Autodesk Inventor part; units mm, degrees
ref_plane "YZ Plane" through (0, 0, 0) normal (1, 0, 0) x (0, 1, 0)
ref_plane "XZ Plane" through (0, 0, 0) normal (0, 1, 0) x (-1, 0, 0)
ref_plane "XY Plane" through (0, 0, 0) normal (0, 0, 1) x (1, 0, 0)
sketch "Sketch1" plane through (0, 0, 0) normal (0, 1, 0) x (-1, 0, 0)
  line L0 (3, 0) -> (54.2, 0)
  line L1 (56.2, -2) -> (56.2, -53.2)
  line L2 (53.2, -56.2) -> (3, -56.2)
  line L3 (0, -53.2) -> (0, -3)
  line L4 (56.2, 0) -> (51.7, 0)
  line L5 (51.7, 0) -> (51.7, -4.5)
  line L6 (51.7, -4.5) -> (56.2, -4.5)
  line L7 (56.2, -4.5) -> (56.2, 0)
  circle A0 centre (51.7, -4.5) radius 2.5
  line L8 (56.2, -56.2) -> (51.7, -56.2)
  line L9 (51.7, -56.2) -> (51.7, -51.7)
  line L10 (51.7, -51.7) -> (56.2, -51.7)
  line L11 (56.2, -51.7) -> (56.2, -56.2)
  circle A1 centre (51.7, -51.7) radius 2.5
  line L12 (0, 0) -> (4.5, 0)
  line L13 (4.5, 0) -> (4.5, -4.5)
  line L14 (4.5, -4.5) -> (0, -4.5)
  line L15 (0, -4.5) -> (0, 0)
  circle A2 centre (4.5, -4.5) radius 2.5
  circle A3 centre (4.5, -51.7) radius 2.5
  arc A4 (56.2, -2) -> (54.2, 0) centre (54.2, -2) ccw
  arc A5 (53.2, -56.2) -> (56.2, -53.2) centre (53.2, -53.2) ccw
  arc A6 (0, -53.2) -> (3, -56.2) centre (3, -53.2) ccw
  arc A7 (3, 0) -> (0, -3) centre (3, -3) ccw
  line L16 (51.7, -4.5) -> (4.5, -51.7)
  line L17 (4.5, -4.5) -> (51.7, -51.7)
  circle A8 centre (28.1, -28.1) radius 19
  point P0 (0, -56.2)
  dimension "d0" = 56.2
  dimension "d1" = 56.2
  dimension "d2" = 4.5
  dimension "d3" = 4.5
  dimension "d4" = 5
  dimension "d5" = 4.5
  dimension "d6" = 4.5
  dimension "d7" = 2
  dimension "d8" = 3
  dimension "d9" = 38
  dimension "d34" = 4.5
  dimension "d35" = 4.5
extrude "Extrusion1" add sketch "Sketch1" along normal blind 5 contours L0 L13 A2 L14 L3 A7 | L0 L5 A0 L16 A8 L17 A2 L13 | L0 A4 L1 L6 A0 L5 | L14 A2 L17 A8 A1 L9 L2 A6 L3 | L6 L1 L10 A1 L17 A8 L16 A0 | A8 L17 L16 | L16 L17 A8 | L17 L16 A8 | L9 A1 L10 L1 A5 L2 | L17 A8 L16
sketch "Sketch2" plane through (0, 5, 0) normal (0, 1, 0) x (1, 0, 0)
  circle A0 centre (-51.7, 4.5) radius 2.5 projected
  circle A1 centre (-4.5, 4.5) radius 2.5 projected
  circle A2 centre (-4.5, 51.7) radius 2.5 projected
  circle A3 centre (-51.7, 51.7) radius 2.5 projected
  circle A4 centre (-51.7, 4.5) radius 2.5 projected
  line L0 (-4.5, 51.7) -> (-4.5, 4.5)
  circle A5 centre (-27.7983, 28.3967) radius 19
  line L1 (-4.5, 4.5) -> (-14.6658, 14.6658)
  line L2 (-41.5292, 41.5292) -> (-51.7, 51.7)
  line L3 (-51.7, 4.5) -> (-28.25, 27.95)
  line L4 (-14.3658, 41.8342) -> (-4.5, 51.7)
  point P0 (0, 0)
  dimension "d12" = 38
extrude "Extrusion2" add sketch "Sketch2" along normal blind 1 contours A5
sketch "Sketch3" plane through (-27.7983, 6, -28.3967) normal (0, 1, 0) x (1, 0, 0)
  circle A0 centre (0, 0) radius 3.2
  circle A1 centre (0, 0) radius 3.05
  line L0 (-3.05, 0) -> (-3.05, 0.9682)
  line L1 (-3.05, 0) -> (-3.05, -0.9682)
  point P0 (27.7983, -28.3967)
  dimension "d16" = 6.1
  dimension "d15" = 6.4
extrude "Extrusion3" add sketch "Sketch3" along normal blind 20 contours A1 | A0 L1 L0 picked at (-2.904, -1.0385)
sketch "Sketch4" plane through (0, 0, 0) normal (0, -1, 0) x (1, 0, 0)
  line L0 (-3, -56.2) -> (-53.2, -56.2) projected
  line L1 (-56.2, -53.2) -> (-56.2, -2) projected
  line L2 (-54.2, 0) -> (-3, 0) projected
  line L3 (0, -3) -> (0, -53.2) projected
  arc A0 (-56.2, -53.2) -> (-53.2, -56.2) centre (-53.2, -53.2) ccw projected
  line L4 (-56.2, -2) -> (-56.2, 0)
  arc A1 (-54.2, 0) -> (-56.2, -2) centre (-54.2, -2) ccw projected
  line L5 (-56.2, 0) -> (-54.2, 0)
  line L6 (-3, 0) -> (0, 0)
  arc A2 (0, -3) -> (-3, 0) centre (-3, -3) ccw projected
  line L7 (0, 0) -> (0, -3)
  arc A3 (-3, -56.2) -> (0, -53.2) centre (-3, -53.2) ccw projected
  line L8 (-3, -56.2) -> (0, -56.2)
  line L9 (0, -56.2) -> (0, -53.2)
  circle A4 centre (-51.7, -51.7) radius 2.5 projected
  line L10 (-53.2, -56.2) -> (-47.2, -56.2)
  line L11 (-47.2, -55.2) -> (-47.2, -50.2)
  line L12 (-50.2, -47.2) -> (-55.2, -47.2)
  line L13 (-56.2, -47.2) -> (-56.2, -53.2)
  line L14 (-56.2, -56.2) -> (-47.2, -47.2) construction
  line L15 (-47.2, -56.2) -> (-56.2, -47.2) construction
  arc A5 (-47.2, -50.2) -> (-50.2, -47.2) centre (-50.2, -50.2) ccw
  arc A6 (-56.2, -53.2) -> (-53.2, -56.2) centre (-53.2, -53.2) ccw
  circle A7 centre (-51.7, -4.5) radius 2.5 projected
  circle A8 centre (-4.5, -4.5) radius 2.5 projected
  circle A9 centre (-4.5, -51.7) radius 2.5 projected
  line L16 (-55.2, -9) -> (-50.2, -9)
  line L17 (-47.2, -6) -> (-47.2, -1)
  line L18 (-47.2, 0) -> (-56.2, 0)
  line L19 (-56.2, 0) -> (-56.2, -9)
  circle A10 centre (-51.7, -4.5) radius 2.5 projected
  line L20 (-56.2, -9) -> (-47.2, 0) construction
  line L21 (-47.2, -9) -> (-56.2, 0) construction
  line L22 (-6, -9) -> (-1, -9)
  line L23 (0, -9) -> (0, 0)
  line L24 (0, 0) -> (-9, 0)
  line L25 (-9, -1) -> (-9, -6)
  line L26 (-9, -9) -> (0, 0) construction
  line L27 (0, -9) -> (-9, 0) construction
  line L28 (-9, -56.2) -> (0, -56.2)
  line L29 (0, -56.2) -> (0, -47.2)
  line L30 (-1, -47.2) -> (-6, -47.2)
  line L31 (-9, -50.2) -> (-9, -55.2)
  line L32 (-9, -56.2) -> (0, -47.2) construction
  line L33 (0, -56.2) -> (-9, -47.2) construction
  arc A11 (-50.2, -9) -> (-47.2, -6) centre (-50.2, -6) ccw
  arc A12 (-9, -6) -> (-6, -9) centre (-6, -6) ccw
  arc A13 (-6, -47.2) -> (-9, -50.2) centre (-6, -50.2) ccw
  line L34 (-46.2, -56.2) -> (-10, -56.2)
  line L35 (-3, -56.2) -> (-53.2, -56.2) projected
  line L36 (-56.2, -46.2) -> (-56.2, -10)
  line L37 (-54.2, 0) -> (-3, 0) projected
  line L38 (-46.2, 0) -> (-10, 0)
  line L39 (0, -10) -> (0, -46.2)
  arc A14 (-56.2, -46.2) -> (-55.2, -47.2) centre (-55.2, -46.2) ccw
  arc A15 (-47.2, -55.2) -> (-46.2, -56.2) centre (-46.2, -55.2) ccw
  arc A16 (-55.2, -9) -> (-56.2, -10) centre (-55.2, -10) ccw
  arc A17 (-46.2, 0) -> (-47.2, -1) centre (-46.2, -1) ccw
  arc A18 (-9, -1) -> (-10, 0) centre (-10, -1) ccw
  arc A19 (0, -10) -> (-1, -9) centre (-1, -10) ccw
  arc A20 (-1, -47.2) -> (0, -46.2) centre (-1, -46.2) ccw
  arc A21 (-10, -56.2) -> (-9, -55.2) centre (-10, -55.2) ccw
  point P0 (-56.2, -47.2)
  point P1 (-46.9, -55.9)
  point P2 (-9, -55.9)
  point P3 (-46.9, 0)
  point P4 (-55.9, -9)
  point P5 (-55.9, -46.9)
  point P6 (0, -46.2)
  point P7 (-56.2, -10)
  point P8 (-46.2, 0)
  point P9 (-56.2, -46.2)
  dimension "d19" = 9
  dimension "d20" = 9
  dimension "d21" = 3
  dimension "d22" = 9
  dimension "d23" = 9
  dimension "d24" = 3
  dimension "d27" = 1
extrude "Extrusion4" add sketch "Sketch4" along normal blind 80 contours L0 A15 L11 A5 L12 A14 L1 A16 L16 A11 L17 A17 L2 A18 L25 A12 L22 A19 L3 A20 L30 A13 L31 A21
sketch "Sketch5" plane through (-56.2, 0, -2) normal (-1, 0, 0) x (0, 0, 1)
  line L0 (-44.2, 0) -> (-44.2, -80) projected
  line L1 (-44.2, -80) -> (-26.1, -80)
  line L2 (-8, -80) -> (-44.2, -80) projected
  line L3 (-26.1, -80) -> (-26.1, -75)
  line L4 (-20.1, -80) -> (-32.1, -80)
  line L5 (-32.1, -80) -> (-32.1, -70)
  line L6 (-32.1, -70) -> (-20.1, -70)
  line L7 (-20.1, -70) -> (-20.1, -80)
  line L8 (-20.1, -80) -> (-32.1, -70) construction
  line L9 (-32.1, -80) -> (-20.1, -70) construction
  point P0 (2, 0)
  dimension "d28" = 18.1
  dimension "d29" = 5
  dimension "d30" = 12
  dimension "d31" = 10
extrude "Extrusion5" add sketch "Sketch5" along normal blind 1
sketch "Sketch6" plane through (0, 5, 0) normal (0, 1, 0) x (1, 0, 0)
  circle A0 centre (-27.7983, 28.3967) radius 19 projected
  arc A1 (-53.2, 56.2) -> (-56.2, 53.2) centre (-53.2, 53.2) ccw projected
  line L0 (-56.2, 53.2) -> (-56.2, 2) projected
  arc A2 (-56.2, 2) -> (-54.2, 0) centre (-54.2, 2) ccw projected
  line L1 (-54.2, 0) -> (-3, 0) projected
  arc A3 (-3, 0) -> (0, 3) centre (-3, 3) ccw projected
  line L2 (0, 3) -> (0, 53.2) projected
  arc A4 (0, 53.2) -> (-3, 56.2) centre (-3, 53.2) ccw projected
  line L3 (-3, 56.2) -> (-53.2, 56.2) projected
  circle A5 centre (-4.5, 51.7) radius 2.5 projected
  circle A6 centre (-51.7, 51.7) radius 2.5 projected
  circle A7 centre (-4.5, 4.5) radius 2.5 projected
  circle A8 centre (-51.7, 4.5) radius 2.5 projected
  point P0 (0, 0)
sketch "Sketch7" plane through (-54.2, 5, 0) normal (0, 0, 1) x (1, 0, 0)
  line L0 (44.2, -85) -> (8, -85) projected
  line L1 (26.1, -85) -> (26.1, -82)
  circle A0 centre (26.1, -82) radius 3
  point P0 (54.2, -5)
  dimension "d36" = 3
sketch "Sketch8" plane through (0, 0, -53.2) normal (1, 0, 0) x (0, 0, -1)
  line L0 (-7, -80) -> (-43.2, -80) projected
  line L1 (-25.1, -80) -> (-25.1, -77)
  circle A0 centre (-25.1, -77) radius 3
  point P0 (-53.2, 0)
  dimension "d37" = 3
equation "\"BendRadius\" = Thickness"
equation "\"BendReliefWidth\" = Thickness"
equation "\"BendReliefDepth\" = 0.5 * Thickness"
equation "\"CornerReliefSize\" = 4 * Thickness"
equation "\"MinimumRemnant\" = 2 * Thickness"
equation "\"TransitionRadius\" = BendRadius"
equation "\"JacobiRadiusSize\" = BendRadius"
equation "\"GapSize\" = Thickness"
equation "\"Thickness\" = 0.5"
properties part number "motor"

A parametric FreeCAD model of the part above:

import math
import FreeCAD as App
import Part
import Sketcher
from FreeCAD import Vector
Q = App.Units.Quantity

doc = App.newDocument("Part")
params = doc.addObject("Spreadsheet::Sheet", "Params")
for row, (alias, value) in enumerate([
    ("sketch1_diameter", "5 mm"),
    ("sketch1_radius", "3 mm"),
    ("sketch1_radius2", "2 mm"),
    ("pad1_length", "5 mm"),
    ("sketch2_diameter", "38 mm"),
    ("pad2_length", "1 mm"),
    ("sketch3_radius", "3.2 mm"),
    ("sketch3_width", "3.05 mm"),
    ("pad3_length", "20 mm"),
    ("sketch4_radius", "1 mm"),
    ("sketch4_radius2", "3 mm"),
    ("sketch4_width", "36.2 mm"),
    ("pad4_length", "80 mm"),
    ("sketch5_width", "10 mm"),
    ("sketch5_height", "12 mm"),
    ("pad5_length", "1 mm"),
], start=1):
    params.set(f"A{row}", alias)
    params.set(f"B{row}", "=" + value)
    params.setAlias(f"B{row}", alias)

body = doc.addObject("PartDesign::Body", "Body")

# Sketch on XZ plane
sketch1 = doc.addObject("Sketcher::SketchObject", "Sketch")
body.addObject(sketch1)
sketch1.AttachmentSupport = (doc.XZ_Plane, [""])
sketch1.MapMode = "FlatFace"
sketch1.addGeometry([
    Part.ArcOfCircle(Part.Circle(Vector(-3, -3, 0), Vector(0, 0, 1), 3), math.radians(0), math.radians(90)),  # 0
    Part.LineSegment(Vector(0, -3, 0), Vector(0, -53.2, 0)),  # 1
    Part.ArcOfCircle(Part.Circle(Vector(-3, -53.2, 0), Vector(0, 0, 1), 3), math.radians(-90), math.radians(0)),  # 2
    Part.LineSegment(Vector(-3, -56.2, 0), Vector(-53.2, -56.2, 0)),  # 3
    Part.ArcOfCircle(Part.Circle(Vector(-53.2, -53.2, 0), Vector(0, 0, 1), 3), math.radians(180), math.radians(270)),  # 4
    Part.LineSegment(Vector(-56.2, -53.2, 0), Vector(-56.2, -2, 0)),  # 5
    Part.ArcOfCircle(Part.Circle(Vector(-54.2, -2, 0), Vector(0, 0, 1), 2), math.radians(90), math.radians(180)),  # 6
    Part.LineSegment(Vector(-54.2, 0, 0), Vector(-3, 0, 0)),  # 7
    Part.Circle(Vector(-4.5, -4.5, 0), Vector(0, 0, 1), 2.5),  # 8
    Part.Circle(Vector(-51.7, -4.5, 0), Vector(0, 0, 1), 2.5),  # 9
    Part.Circle(Vector(-4.5, -51.7, 0), Vector(0, 0, 1), 2.5),  # 10
    Part.Circle(Vector(-51.7, -51.7, 0), Vector(0, 0, 1), 2.5),  # 11
], False)
sketch1.addConstraint([
    Sketcher.Constraint("Tangent", 0, 1, 1, 1),
    Sketcher.Constraint("Tangent", 1, 2, 2, 2),
    Sketcher.Constraint("Tangent", 2, 1, 3, 1),
    Sketcher.Constraint("Tangent", 3, 2, 4, 2),
    Sketcher.Constraint("Tangent", 4, 1, 5, 1),
    Sketcher.Constraint("Tangent", 5, 2, 6, 2),
    Sketcher.Constraint("Tangent", 6, 1, 7, 1),
    Sketcher.Constraint("Tangent", 7, 2, 0, 2),
    Sketcher.Constraint("Vertical", 1),
    Sketcher.Constraint("Horizontal", 3),
    Sketcher.Constraint("Vertical", 5),
    Sketcher.Constraint("Horizontal", 7),
    Sketcher.Constraint("Equal", 0, 2),
    Sketcher.Constraint("Equal", 2, 4),
    Sketcher.Constraint("Equal", 8, 9),
    Sketcher.Constraint("Equal", 9, 10),
    Sketcher.Constraint("Equal", 10, 11),
    Sketcher.Constraint("PointOnObject", 0, 1, -2),
    Sketcher.Constraint("PointOnObject", 6, 1, -1),
    Sketcher.Constraint("Horizontal", 8, 3, 9, 3),
    Sketcher.Constraint("Horizontal", 10, 3, 11, 3),
    Sketcher.Constraint("Vertical", 8, 3, 10, 3),
    Sketcher.Constraint("Vertical", 9, 3, 11, 3),
    Sketcher.Constraint("Equal", 3, 1),
    Sketcher.Constraint("Diameter", 8, Q("5 mm")),
    Sketcher.Constraint("Radius", 0, Q("3 mm")),
    Sketcher.Constraint("Radius", 6, Q("2 mm")),
    Sketcher.Constraint("DistanceX", 8, 3, -1, 1, Q("4.5 mm")),
    Sketcher.Constraint("DistanceY", 8, 3, -1, 1, Q("4.5 mm")),
    Sketcher.Constraint("DistanceY", 2, 1, -1, 1, Q("56.2 mm")),
    Sketcher.Constraint("DistanceY", 2, 1, 10, 3, Q("4.5 mm")),
    Sketcher.Constraint("DistanceX", 4, 1, 11, 3, Q("4.5 mm")),
])
sketch1.setExpression("Constraints[24]", "Params.sketch1_diameter")
sketch1.setExpression("Constraints[25]", "Params.sketch1_radius")
sketch1.setExpression("Constraints[26]", "Params.sketch1_radius2")
pad1 = doc.addObject("PartDesign::Pad", "Pad")
body.addObject(pad1)
pad1.Profile = sketch1
pad1.setExpression("Length", "Params.pad1_length")
pad1.Reversed = True

# Sketch on XZ plane
sketch2 = doc.addObject("Sketcher::SketchObject", "Sketch001")
body.addObject(sketch2)
sketch2.AttachmentSupport = (doc.XZ_Plane, [""])
sketch2.MapMode = "FlatFace"
sketch2.AttachmentOffset = App.Placement(Vector(0, 0, -5), App.Rotation())
sketch2.addGeometry(Part.Circle(Vector(-28, -28, 0), Vector(0, 0, 1), 19), False)
sketch2.addConstraint([
    Sketcher.Constraint("Diameter", 0, Q("38 mm")),
    Sketcher.Constraint("DistanceX", 0, 3, -1, 1, Q("27.7983 mm")),
    Sketcher.Constraint("DistanceY", 0, 3, -1, 1, Q("28.3967 mm")),
])
sketch2.setExpression("Constraints[0]", "Params.sketch2_diameter")
pad2 = doc.addObject("PartDesign::Pad", "Pad001")
body.addObject(pad2)
pad2.Profile = sketch2
pad2.setExpression("Length", "Params.pad2_length")
pad2.Reversed = True

# Sketch on XZ plane
sketch3 = doc.addObject("Sketcher::SketchObject", "Sketch002")
body.addObject(sketch3)
sketch3.AttachmentSupport = (doc.XZ_Plane, [""])
sketch3.MapMode = "FlatFace"
sketch3.AttachmentOffset = App.Placement(Vector(0, 0, -6), App.Rotation())
sketch3.addGeometry([
    Part.ArcOfCircle(Part.Circle(Vector(-27.8, -28.4, 0), Vector(0, 0, 1), 3.2), math.radians(-162), math.radians(162)),
    Part.LineSegment(Vector(-30.8, -27.4, 0), Vector(-30.8, -29.4, 0)),
], False)
sketch3.addConstraint([
    Sketcher.Constraint("Coincident", 0, 1, 1, 2),
    Sketcher.Constraint("Coincident", 1, 1, 0, 2),
    Sketcher.Constraint("Vertical", 1),
    Sketcher.Constraint("Radius", 0, Q("3.2 mm")),
    Sketcher.Constraint("DistanceX", 0, 1, 0, 3, Q("3.05 mm")),
    Sketcher.Constraint("DistanceY", 0, 1, -1, 1, Q("29.365 mm")),
    Sketcher.Constraint("DistanceX", 0, 3, -1, 1, Q("27.7983 mm")),
])
sketch3.setExpression("Constraints[3]", "Params.sketch3_radius")
sketch3.setExpression("Constraints[4]", "Params.sketch3_width")
pad3 = doc.addObject("PartDesign::Pad", "Pad002")
body.addObject(pad3)
pad3.Profile = sketch3
pad3.setExpression("Length", "Params.pad3_length")
pad3.Reversed = True

# Sketch on XZ plane
sketch4 = doc.addObject("Sketcher::SketchObject", "Sketch003")
body.addObject(sketch4)
sketch4.AttachmentSupport = (doc.XZ_Plane, [""])
sketch4.MapMode = "FlatFace"
sketch4.addGeometry([
    Part.LineSegment(Vector(-46.2, -56.2, 0), Vector(-10, -56.2, 0)),  # 0
    Part.ArcOfCircle(Part.Circle(Vector(-10, -55.2, 0), Vector(0, 0, 1), 1), math.radians(-90), math.radians(0)),  # 1
    Part.LineSegment(Vector(-9, -55.2, 0), Vector(-9, -50.2, 0)),  # 2
    Part.ArcOfCircle(Part.Circle(Vector(-6, -50.2, 0), Vector(0, 0, 1), 3), math.radians(90), math.radians(180)),  # 3
    Part.LineSegment(Vector(-6, -47.2, 0), Vector(-1, -47.2, 0)),  # 4
    Part.ArcOfCircle(Part.Circle(Vector(-1, -46.2, 0), Vector(0, 0, 1), 1), math.radians(-90), math.radians(0)),  # 5
    Part.LineSegment(Vector(0, -46.2, 0), Vector(0, -10, 0)),  # 6
    Part.ArcOfCircle(Part.Circle(Vector(-1, -10, 0), Vector(0, 0, 1), 1), math.radians(0), math.radians(90)),  # 7
    Part.LineSegment(Vector(-1, -9, 0), Vector(-6, -9, 0)),  # 8
    Part.ArcOfCircle(Part.Circle(Vector(-6, -6, 0), Vector(0, 0, 1), 3), math.radians(180), math.radians(270)),  # 9
    Part.LineSegment(Vector(-9, -6, 0), Vector(-9, -1, 0)),  # 10
    Part.ArcOfCircle(Part.Circle(Vector(-10, -1, 0), Vector(0, 0, 1), 1), math.radians(0), math.radians(90)),  # 11
    Part.LineSegment(Vector(-10, 0, 0), Vector(-46.2, 0, 0)),  # 12
    Part.ArcOfCircle(Part.Circle(Vector(-46.2, -1, 0), Vector(0, 0, 1), 1), math.radians(90), math.radians(180)),  # 13
    Part.LineSegment(Vector(-47.2, -1, 0), Vector(-47.2, -6, 0)),  # 14
    Part.ArcOfCircle(Part.Circle(Vector(-50.2, -6, 0), Vector(0, 0, 1), 3), math.radians(-90), math.radians(0)),  # 15
    Part.LineSegment(Vector(-50.2, -9, 0), Vector(-55.2, -9, 0)),  # 16
    Part.ArcOfCircle(Part.Circle(Vector(-55.2, -10, 0), Vector(0, 0, 1), 1), math.radians(90), math.radians(180)),  # 17
    Part.LineSegment(Vector(-56.2, -10, 0), Vector(-56.2, -46.2, 0)),  # 18
    Part.ArcOfCircle(Part.Circle(Vector(-55.2, -46.2, 0), Vector(0, 0, 1), 1), math.radians(180), math.radians(270)),  # 19
    Part.LineSegment(Vector(-55.2, -47.2, 0), Vector(-50.2, -47.2, 0)),  # 20
    Part.ArcOfCircle(Part.Circle(Vector(-50.2, -50.2, 0), Vector(0, 0, 1), 3), math.radians(0), math.radians(90)),  # 21
    Part.LineSegment(Vector(-47.2, -50.2, 0), Vector(-47.2, -55.2, 0)),  # 22
    Part.ArcOfCircle(Part.Circle(Vector(-46.2, -55.2, 0), Vector(0, 0, 1), 1), math.radians(180), math.radians(270)),  # 23
], False)
sketch4.addConstraint([
    Sketcher.Constraint("Tangent", 0, 2, 1, 1),
    Sketcher.Constraint("Tangent", 1, 2, 2, 1),
    Sketcher.Constraint("Tangent", 2, 2, 3, 2),
    Sketcher.Constraint("Tangent", 3, 1, 4, 1),
    Sketcher.Constraint("Tangent", 4, 2, 5, 1),
    Sketcher.Constraint("Tangent", 5, 2, 6, 1),
    Sketcher.Constraint("Tangent", 6, 2, 7, 1),
    Sketcher.Constraint("Tangent", 7, 2, 8, 1),
    Sketcher.Constraint("Tangent", 8, 2, 9, 2),
    Sketcher.Constraint("Tangent", 9, 1, 10, 1),
    Sketcher.Constraint("Tangent", 10, 2, 11, 1),
    Sketcher.Constraint("Tangent", 11, 2, 12, 1),
    Sketcher.Constraint("Tangent", 12, 2, 13, 1),
    Sketcher.Constraint("Tangent", 13, 2, 14, 1),
    Sketcher.Constraint("Tangent", 14, 2, 15, 2),
    Sketcher.Constraint("Tangent", 15, 1, 16, 1),
    Sketcher.Constraint("Tangent", 16, 2, 17, 1),
    Sketcher.Constraint("Tangent", 17, 2, 18, 1),
    Sketcher.Constraint("Tangent", 18, 2, 19, 1),
    Sketcher.Constraint("Tangent", 19, 2, 20, 1),
    Sketcher.Constraint("Tangent", 20, 2, 21, 2),
    Sketcher.Constraint("Tangent", 21, 1, 22, 1),
    Sketcher.Constraint("Tangent", 22, 2, 23, 1),
    Sketcher.Constraint("Tangent", 23, 2, 0, 1),
    Sketcher.Constraint("Horizontal", 0),
    Sketcher.Constraint("Vertical", 2),
    Sketcher.Constraint("Horizontal", 4),
    Sketcher.Constraint("Vertical", 6),
    Sketcher.Constraint("Horizontal", 8),
    Sketcher.Constraint("Vertical", 10),
    Sketcher.Constraint("Horizontal", 12),
    Sketcher.Constraint("Vertical", 14),
    Sketcher.Constraint("Horizontal", 16),
    Sketcher.Constraint("Vertical", 18),
    Sketcher.Constraint("Horizontal", 20),
    Sketcher.Constraint("Vertical", 22),
    Sketcher.Constraint("Equal", 1, 5),
    Sketcher.Constraint("Equal", 5, 7),
    Sketcher.Constraint("Equal", 3, 9),
    Sketcher.Constraint("Equal", 7, 11),
    Sketcher.Constraint("Equal", 11, 13),
    Sketcher.Constraint("Equal", 9, 15),
    Sketcher.Constraint("Equal", 13, 17),
    Sketcher.Constraint("Equal", 17, 19),
    Sketcher.Constraint("Equal", 15, 21),
    Sketcher.Constraint("Equal", 19, 23),
    Sketcher.Constraint("PointOnObject", 5, 2, -2),
    Sketcher.Constraint("PointOnObject", 11, 2, -1),
    Sketcher.Constraint("Horizontal", 9, 3, 15, 3),
    Sketcher.Constraint("Horizontal", 5, 3, 19, 3),
    Sketcher.Constraint("Vertical", 3, 3, 9, 3),
    Sketcher.Constraint("Vertical", 15, 3, 21, 3),
    Sketcher.Constraint("Equal", 8, 16),
    Sketcher.Constraint("Equal", 20, 2),
    Sketcher.Constraint("Equal", 12, 6),
    Sketcher.Constraint("Equal", 2, 10),
    Sketcher.Constraint("Radius", 1, Q("1 mm")),
    Sketcher.Constraint("Radius", 3, Q("3 mm")),
    Sketcher.Constraint("DistanceX", 1, 2, -1, 1, Q("9 mm")),
    Sketcher.Constraint("DistanceX", 0, 1, 0, 2, Q("36.2 mm")),
])
sketch4.setExpression("Constraints[56]", "Params.sketch4_radius")
sketch4.setExpression("Constraints[57]", "Params.sketch4_radius2")
sketch4.setExpression("Constraints[59]", "Params.sketch4_width")
pad4 = doc.addObject("PartDesign::Pad", "Pad003")
body.addObject(pad4)
pad4.Profile = sketch4
pad4.setExpression("Length", "Params.pad4_length")

# Sketch on YZ plane
sketch5 = doc.addObject("Sketcher::SketchObject", "Sketch004")
body.addObject(sketch5)
sketch5.AttachmentSupport = (doc.YZ_Plane, [""])
sketch5.MapMode = "FlatFace"
sketch5.AttachmentOffset = App.Placement(Vector(0, 0, -56.2), App.Rotation())
sketch5.addGeometry([
    Part.LineSegment(Vector(-70, -34, 0), Vector(-80, -34, 0)),
    Part.LineSegment(Vector(-80, -34, 0), Vector(-80, -22, 0)),
    Part.LineSegment(Vector(-80, -22, 0), Vector(-70, -22, 0)),
    Part.LineSegment(Vector(-70, -22, 0), Vector(-70, -34, 0)),
], False)
sketch5.addConstraint([
    Sketcher.Constraint("Coincident", 0, 2, 1, 1),
    Sketcher.Constraint("Coincident", 1, 2, 2, 1),
    Sketcher.Constraint("Coincident", 2, 2, 3, 1),
    Sketcher.Constraint("Coincident", 3, 2, 0, 1),
    Sketcher.Constraint("Horizontal", 0),
    Sketcher.Constraint("Vertical", 1),
    Sketcher.Constraint("Horizontal", 2),
    Sketcher.Constraint("Vertical", 3),
    Sketcher.Constraint("DistanceX", 0, 2, 0, 1, Q("10 mm")),
    Sketcher.Constraint("DistanceY", 1, 1, 1, 2, Q("12 mm")),
    Sketcher.Constraint("DistanceX", 0, 2, -1, 1, Q("80 mm")),
    Sketcher.Constraint("DistanceY", 0, 2, -1, 1, Q("34.1 mm")),
])
sketch5.setExpression("Constraints[8]", "Params.sketch5_width")
sketch5.setExpression("Constraints[9]", "Params.sketch5_height")
pad5 = doc.addObject("PartDesign::Pad", "Pad004")
body.addObject(pad5)
pad5.Profile = sketch5
pad5.setExpression("Length", "Params.pad5_length")
pad5.Reversed = True

doc.recompute()
